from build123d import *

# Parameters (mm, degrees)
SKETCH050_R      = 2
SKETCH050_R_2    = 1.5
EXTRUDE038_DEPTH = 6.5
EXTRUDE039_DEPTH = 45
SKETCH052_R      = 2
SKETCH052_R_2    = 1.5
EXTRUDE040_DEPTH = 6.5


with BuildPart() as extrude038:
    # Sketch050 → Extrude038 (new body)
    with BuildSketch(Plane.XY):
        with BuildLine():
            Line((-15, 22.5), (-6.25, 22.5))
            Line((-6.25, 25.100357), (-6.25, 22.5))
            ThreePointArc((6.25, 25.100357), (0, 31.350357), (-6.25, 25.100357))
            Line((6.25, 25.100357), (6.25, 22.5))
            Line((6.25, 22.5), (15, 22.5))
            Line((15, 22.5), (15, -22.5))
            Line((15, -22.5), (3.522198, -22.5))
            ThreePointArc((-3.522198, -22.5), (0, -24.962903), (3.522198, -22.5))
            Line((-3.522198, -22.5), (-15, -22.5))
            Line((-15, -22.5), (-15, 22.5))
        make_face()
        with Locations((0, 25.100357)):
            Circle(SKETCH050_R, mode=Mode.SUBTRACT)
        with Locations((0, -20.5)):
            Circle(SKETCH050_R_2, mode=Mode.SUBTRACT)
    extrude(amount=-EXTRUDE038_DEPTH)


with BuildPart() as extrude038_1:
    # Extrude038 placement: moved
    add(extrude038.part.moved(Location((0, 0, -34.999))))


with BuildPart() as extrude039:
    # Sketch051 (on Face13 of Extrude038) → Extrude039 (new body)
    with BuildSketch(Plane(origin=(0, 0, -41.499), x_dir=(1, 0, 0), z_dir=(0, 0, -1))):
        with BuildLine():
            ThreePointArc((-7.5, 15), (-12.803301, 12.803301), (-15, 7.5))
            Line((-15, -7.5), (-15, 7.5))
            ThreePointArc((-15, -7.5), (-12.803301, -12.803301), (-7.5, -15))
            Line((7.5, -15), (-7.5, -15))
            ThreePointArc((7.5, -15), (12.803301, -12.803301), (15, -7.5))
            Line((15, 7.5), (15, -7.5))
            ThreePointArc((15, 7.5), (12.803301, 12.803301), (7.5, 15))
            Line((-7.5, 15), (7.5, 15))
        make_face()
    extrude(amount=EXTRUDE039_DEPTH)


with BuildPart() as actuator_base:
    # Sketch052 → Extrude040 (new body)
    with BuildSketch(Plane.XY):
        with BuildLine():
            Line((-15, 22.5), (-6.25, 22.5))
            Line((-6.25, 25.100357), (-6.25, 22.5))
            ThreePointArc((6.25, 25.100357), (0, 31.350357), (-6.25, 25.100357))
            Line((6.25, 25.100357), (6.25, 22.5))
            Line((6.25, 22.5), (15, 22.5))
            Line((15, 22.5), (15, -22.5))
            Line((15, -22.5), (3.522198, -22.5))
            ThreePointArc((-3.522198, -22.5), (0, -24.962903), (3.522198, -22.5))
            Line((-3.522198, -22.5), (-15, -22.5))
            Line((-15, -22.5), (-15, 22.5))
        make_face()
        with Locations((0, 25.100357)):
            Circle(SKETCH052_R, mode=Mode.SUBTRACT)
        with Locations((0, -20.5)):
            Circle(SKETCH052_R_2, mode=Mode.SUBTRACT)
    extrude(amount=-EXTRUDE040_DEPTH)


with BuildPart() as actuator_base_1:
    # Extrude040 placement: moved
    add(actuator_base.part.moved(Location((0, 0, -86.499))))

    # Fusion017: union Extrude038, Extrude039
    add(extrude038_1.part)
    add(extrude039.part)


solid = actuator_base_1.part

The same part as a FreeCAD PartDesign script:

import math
import FreeCAD as App
import Part
import Sketcher

V = App.Vector
Q = App.Units.Quantity

doc = App.newDocument("Part")
params = doc.addObject("Spreadsheet::Sheet", "Params")
for row, (alias, value) in enumerate([
    ("sketch1_diameter", "3 mm"),
    ("sketch1_diameter2", "4 mm"),
    ("sketch1_height", "45 mm"),
    ("sketch1_radius", "3.749999 mm"),
    ("sketch1_radius2", "6.25 mm"),
    ("pad1_length", "6.5 mm"),
    ("sketch2_radius", "7.5 mm"),
    ("sketch2_width", "15 mm"),
    ("pad2_length", "45 mm"),
    ("sketch3_diameter", "3 mm"),
    ("sketch3_diameter2", "4 mm"),
    ("sketch3_height", "45 mm"),
    ("sketch3_radius", "3.749999 mm"),
    ("sketch3_radius2", "6.25 mm"),
    ("pad3_length", "6.5 mm"),
], start=1):
    params.set(f"A{row}", alias)
    params.set(f"B{row}", "=" + value)
    params.setAlias(f"B{row}", alias)

body = doc.addObject("PartDesign::Body", "Body")

# Sketch on XY plane
sketch1 = body.newObject("Sketcher::SketchObject", "Sketch")
sketch1.AttachmentSupport = (doc.getObject("XY_Plane"), [""])
sketch1.MapMode = "FlatFace"
sketch1.addGeometry(Part.LineSegment(V(-6.25, 22.5, 0), V(-15, 22.5, 0)), False)
sketch1.addGeometry(Part.LineSegment(V(-15, 22.5, 0), V(-15, -22.5, 0)), False)
sketch1.addGeometry(Part.LineSegment(V(-15, -22.5, 0), V(-3.522198, -22.5, 0)), False)
sketch1.addGeometry(Part.ArcOfCircle(Part.Circle(V(0, -21.212904, 0), V(0, 0, 1), 3.749999), math.radians(-159.926472), math.radians(-20.073528)), False)
sketch1.addGeometry(Part.LineSegment(V(3.522198, -22.5, 0), V(15, -22.5, 0)), False)
sketch1.addGeometry(Part.LineSegment(V(15, -22.5, 0), V(15, 22.5, 0)), False)
sketch1.addGeometry(Part.LineSegment(V(15, 22.5, 0), V(6.25, 22.5, 0)), False)
sketch1.addGeometry(Part.LineSegment(V(6.25, 22.5, 0), V(6.25, 25.100357, 0)), False)
sketch1.addGeometry(Part.ArcOfCircle(Part.Circle(V(0, 25.100357, 0), V(0, 0, 1), 6.25), math.radians(0), math.radians(180)), False)
sketch1.addGeometry(Part.LineSegment(V(-6.25, 25.100357, 0), V(-6.25, 22.5, 0)), False)
sketch1.addGeometry(Part.Circle(V(0, -20.5, 0), V(0, 0, 1), 1.5), False)
sketch1.addGeometry(Part.Circle(V(0, 25.100357, 0), V(0, 0, 1), 2), False)
sketch1.addConstraint(Sketcher.Constraint("Coincident", 0, 2, 1, 1))
sketch1.addConstraint(Sketcher.Constraint("Coincident", 1, 2, 2, 1))
sketch1.addConstraint(Sketcher.Constraint("Coincident", 2, 2, 3, 1))
sketch1.addConstraint(Sketcher.Constraint("Coincident", 3, 2, 4, 1))
sketch1.addConstraint(Sketcher.Constraint("Coincident", 4, 2, 5, 1))
sketch1.addConstraint(Sketcher.Constraint("Coincident", 5, 2, 6, 1))
sketch1.addConstraint(Sketcher.Constraint("Coincident", 6, 2, 7, 1))
sketch1.addConstraint(Sketcher.Constraint("Tangent", 7, 2, 8, 1))
sketch1.addConstraint(Sketcher.Constraint("Tangent", 8, 2, 9, 1))
sketch1.addConstraint(Sketcher.Constraint("Coincident", 9, 2, 0, 1))
sketch1.addConstraint(Sketcher.Constraint("Horizontal", 0))
sketch1.addConstraint(Sketcher.Constraint("Vertical", 1))
sketch1.addConstraint(Sketcher.Constraint("Horizontal", 2))
sketch1.addConstraint(Sketcher.Constraint("Horizontal", 4))
sketch1.addConstraint(Sketcher.Constraint("Vertical", 5))
sketch1.addConstraint(Sketcher.Constraint("Horizontal", 6))
sketch1.addConstraint(Sketcher.Constraint("Vertical", 7))
sketch1.addConstraint(Sketcher.Constraint("Vertical", 9))
sketch1.addConstraint(Sketcher.Constraint("Coincident", 11, 3, 8, 3))
sketch1.addConstraint(Sketcher.Constraint("Symmetric", 0, 2, 4, 2, -1, 1))
sketch1.addConstraint(Sketcher.Constraint("Symmetric", 2, 2, 3, 2, -2))
sketch1.addConstraint(Sketcher.Constraint("Symmetric", 6, 2, 9, 2, -2))
sketch1.addConstraint(Sketcher.Constraint("PointOnObject", 10, 3, -2))
sketch1.addConstraint(Sketcher.Constraint("Diameter", 10, Q("3 mm")))
sketch1.addConstraint(Sketcher.Constraint("Diameter", 11, Q("4 mm")))
sketch1.addConstraint(Sketcher.Constraint("DistanceY", 1, 2, 1, 1, Q("45 mm")))
sketch1.addConstraint(Sketcher.Constraint("Radius", 3, Q("3.749999 mm")))
sketch1.addConstraint(Sketcher.Constraint("Radius", 8, Q("6.25 mm")))
sketch1.addConstraint(Sketcher.Constraint("DistanceX", 0, 2, -1, 1, Q("15 mm")))
sketch1.addConstraint(Sketcher.Constraint("DistanceY", 10, 3, 0, 2, Q("43 mm")))
sketch1.addConstraint(Sketcher.Constraint("DistanceX", 2, 1, 2, 2, Q("11.477802 mm")))
sketch1.addConstraint(Sketcher.Constraint("DistanceY", 7, 1, 7, 2, Q("2.600357 mm")))
sketch1.setExpression("Constraints[23]", "Params.sketch1_diameter")
sketch1.setExpression("Constraints[24]", "Params.sketch1_diameter2")
sketch1.setExpression("Constraints[25]", "Params.sketch1_height")
sketch1.setExpression("Constraints[26]", "Params.sketch1_radius")
sketch1.setExpression("Constraints[27]", "Params.sketch1_radius2")
pad1 = body.newObject("PartDesign::Pad", "Pad")
pad1.Profile = sketch1
pad1.setExpression("Length", "Params.pad1_length")
pad1.Reversed = True
body2 = doc.addObject("PartDesign::Body", "Body001")
doc.recompute()

body.Placement = App.Placement(V(0, 0, -34.999), App.Rotation(V(0, 0, 1), 0))
boolean = body2.newObject("PartDesign::Boolean", "Boolean")
boolean.Type = "Fuse"
boolean.addObjects([body])
body3 = doc.addObject("PartDesign::Body", "Body002")

# Sketch on XY plane
sketch2 = body3.newObject("Sketcher::SketchObject", "Sketch001")
sketch2.AttachmentSupport = (doc.getObject("XY_Plane002"), [""])
sketch2.MapMode = "FlatFace"
sketch2.AttachmentOffset = App.Placement(V(0, 0, -41.499), App.Rotation())
sketch2.addGeometry(Part.ArcOfCircle(Part.Circle(V(-7.5, -7.5, 0), V(0, 0, 1), 7.5), math.radians(179.999996), math.radians(270.000004)), False)
sketch2.addGeometry(Part.LineSegment(V(-15, -7.5, 0), V(-15, 7.5, 0)), False)
sketch2.addGeometry(Part.ArcOfCircle(Part.Circle(V(-7.5, 7.5, 0), V(0, 0, 1), 7.5), math.radians(89.999996), math.radians(180.000004)), False)
sketch2.addGeometry(Part.LineSegment(V(-7.5, 15, 0), V(7.5, 15, 0)), False)
sketch2.addGeometry(Part.ArcOfCircle(Part.Circle(V(7.5, 7.5, 0), V(0, 0, 1), 7.5), math.radians(-0.000004), math.radians(90.000004)), False)
sketch2.addGeometry(Part.LineSegment(V(15, 7.5, 0), V(15, -7.5, 0)), False)
sketch2.addGeometry(Part.ArcOfCircle(Part.Circle(V(7.5, -7.5, 0), V(0, 0, 1), 7.5), math.radians(-90.000004), math.radians(0.000004)), False)
sketch2.addGeometry(Part.LineSegment(V(7.5, -15, 0), V(-7.5, -15, 0)), False)
sketch2.addConstraint(Sketcher.Constraint("Tangent", 0, 1, 1, 1))
sketch2.addConstraint(Sketcher.Constraint("Tangent", 1, 2, 2, 2))
sketch2.addConstraint(Sketcher.Constraint("Tangent", 2, 1, 3, 1))
sketch2.addConstraint(Sketcher.Constraint("Tangent", 3, 2, 4, 2))
sketch2.addConstraint(Sketcher.Constraint("Tangent", 4, 1, 5, 1))
sketch2.addConstraint(Sketcher.Constraint("Tangent", 5, 2, 6, 2))
sketch2.addConstraint(Sketcher.Constraint("Tangent", 6, 1, 7, 1))
sketch2.addConstraint(Sketcher.Constraint("Tangent", 7, 2, 0, 2))
sketch2.addConstraint(Sketcher.Constraint("Vertical", 1))
sketch2.addConstraint(Sketcher.Constraint("Horizontal", 3))
sketch2.addConstraint(Sketcher.Constraint("Vertical", 5))
sketch2.addConstraint(Sketcher.Constraint("Horizontal", 7))
sketch2.addConstraint(Sketcher.Constraint("Equal", 0, 2))
sketch2.addConstraint(Sketcher.Constraint("Equal", 2, 4))
sketch2.addConstraint(Sketcher.Constraint("Equal", 4, 6))
sketch2.addConstraint(Sketcher.Constraint("Symmetric", 0, 3, 4, 3, -1, 1))
sketch2.addConstraint(Sketcher.Constraint("Equal", 7, 1))
sketch2.addConstraint(Sketcher.Constraint("Radius", 0, Q("7.5 mm")))
sketch2.addConstraint(Sketcher.Constraint("DistanceX", 3, 1, 3, 2, Q("15 mm")))
sketch2.setExpression("Constraints[17]", "Params.sketch2_radius")
sketch2.setExpression("Constraints[18]", "Params.sketch2_width")
pad2 = body3.newObject("PartDesign::Pad", "Pad001")
pad2.Profile = sketch2
pad2.setExpression("Length", "Params.pad2_length")
pad2.Reversed = True
body4 = doc.addObject("PartDesign::Body", "Body003")

# Sketch on XY plane
sketch3 = body4.newObject("Sketcher::SketchObject", "Sketch002")
sketch3.AttachmentSupport = (doc.getObject("XY_Plane003"), [""])
sketch3.MapMode = "FlatFace"
sketch3.addGeometry(Part.LineSegment(V(-6.25, 22.5, 0), V(-15, 22.5, 0)), False)
sketch3.addGeometry(Part.LineSegment(V(-15, 22.5, 0), V(-15, -22.5, 0)), False)
sketch3.addGeometry(Part.LineSegment(V(-15, -22.5, 0), V(-3.522198, -22.5, 0)), False)
sketch3.addGeometry(Part.ArcOfCircle(Part.Circle(V(0, -21.212904, 0), V(0, 0, 1), 3.749999), math.radians(-159.926472), math.radians(-20.073528)), False)
sketch3.addGeometry(Part.LineSegment(V(3.522198, -22.5, 0), V(15, -22.5, 0)), False)
sketch3.addGeometry(Part.LineSegment(V(15, -22.5, 0), V(15, 22.5, 0)), False)
sketch3.addGeometry(Part.LineSegment(V(15, 22.5, 0), V(6.25, 22.5, 0)), False)
sketch3.addGeometry(Part.LineSegment(V(6.25, 22.5, 0), V(6.25, 25.100357, 0)), False)
sketch3.addGeometry(Part.ArcOfCircle(Part.Circle(V(0, 25.100357, 0), V(0, 0, 1), 6.25), math.radians(0), math.radians(180)), False)
sketch3.addGeometry(Part.LineSegment(V(-6.25, 25.100357, 0), V(-6.25, 22.5, 0)), False)
sketch3.addGeometry(Part.Circle(V(0, -20.5, 0), V(0, 0, 1), 1.5), False)
sketch3.addGeometry(Part.Circle(V(0, 25.100357, 0), V(0, 0, 1), 2), False)
sketch3.addConstraint(Sketcher.Constraint("Coincident", 0, 2, 1, 1))
sketch3.addConstraint(Sketcher.Constraint("Coincident", 1, 2, 2, 1))
sketch3.addConstraint(Sketcher.Constraint("Coincident", 2, 2, 3, 1))
sketch3.addConstraint(Sketcher.Constraint("Coincident", 3, 2, 4, 1))
sketch3.addConstraint(Sketcher.Constraint("Coincident", 4, 2, 5, 1))
sketch3.addConstraint(Sketcher.Constraint("Coincident", 5, 2, 6, 1))
sketch3.addConstraint(Sketcher.Constraint("Coincident", 6, 2, 7, 1))
sketch3.addConstraint(Sketcher.Constraint("Tangent", 7, 2, 8, 1))
sketch3.addConstraint(Sketcher.Constraint("Tangent", 8, 2, 9, 1))
sketch3.addConstraint(Sketcher.Constraint("Coincident", 9, 2, 0, 1))
sketch3.addConstraint(Sketcher.Constraint("Horizontal", 0))
sketch3.addConstraint(Sketcher.Constraint("Vertical", 1))
sketch3.addConstraint(Sketcher.Constraint("Horizontal", 2))
sketch3.addConstraint(Sketcher.Constraint("Horizontal", 4))
sketch3.addConstraint(Sketcher.Constraint("Vertical", 5))
sketch3.addConstraint(Sketcher.Constraint("Horizontal", 6))
sketch3.addConstraint(Sketcher.Constraint("Vertical", 7))
sketch3.addConstraint(Sketcher.Constraint("Vertical", 9))
sketch3.addConstraint(Sketcher.Constraint("Coincident", 11, 3, 8, 3))
sketch3.addConstraint(Sketcher.Constraint("Symmetric", 0, 2, 4, 2, -1, 1))
sketch3.addConstraint(Sketcher.Constraint("Symmetric", 2, 2, 3, 2, -2))
sketch3.addConstraint(Sketcher.Constraint("Symmetric", 6, 2, 9, 2, -2))
sketch3.addConstraint(Sketcher.Constraint("PointOnObject", 10, 3, -2))
sketch3.addConstraint(Sketcher.Constraint("Diameter", 10, Q("3 mm")))
sketch3.addConstraint(Sketcher.Constraint("Diameter", 11, Q("4 mm")))
sketch3.addConstraint(Sketcher.Constraint("DistanceY", 1, 2, 1, 1, Q("45 mm")))
sketch3.addConstraint(Sketcher.Constraint("Radius", 3, Q("3.749999 mm")))
sketch3.addConstraint(Sketcher.Constraint("Radius", 8, Q("6.25 mm")))
sketch3.addConstraint(Sketcher.Constraint("DistanceX", 0, 2, -1, 1, Q("15 mm")))
sketch3.addConstraint(Sketcher.Constraint("DistanceY", 10, 3, 0, 2, Q("43 mm")))
sketch3.addConstraint(Sketcher.Constraint("DistanceX", 2, 1, 2, 2, Q("11.477802 mm")))
sketch3.addConstraint(Sketcher.Constraint("DistanceY", 7, 1, 7, 2, Q("2.600357 mm")))
sketch3.setExpression("Constraints[23]", "Params.sketch3_diameter")
sketch3.setExpression("Constraints[24]", "Params.sketch3_diameter2")
sketch3.setExpression("Constraints[25]", "Params.sketch3_height")
sketch3.setExpression("Constraints[26]", "Params.sketch3_radius")
sketch3.setExpression("Constraints[27]", "Params.sketch3_radius2")
pad3 = body4.newObject("PartDesign::Pad", "Pad002")
pad3.Profile = sketch3
pad3.setExpression("Length", "Params.pad3_length")
pad3.Reversed = True
body5 = doc.addObject("PartDesign::Body", "Body004")
body5.AllowCompound = True
doc.recompute()

body4.Placement = App.Placement(V(0, 0, -86.499), App.Rotation(V(0, 0, 1), 0))
boolean2 = body5.newObject("PartDesign::Boolean", "Boolean001")
boolean2.Type = "Fuse"
boolean2.addObjects([body4])
doc.recompute()

boolean3 = body5.newObject("PartDesign::Boolean", "Boolean002")
boolean3.Type = "Fuse"
boolean3.addObjects([body2])
doc.recompute()

boolean4 = body5.newObject("PartDesign::Boolean", "Boolean003")
boolean4.Type = "Fuse"
boolean4.addObjects([body3])

doc.recompute()
